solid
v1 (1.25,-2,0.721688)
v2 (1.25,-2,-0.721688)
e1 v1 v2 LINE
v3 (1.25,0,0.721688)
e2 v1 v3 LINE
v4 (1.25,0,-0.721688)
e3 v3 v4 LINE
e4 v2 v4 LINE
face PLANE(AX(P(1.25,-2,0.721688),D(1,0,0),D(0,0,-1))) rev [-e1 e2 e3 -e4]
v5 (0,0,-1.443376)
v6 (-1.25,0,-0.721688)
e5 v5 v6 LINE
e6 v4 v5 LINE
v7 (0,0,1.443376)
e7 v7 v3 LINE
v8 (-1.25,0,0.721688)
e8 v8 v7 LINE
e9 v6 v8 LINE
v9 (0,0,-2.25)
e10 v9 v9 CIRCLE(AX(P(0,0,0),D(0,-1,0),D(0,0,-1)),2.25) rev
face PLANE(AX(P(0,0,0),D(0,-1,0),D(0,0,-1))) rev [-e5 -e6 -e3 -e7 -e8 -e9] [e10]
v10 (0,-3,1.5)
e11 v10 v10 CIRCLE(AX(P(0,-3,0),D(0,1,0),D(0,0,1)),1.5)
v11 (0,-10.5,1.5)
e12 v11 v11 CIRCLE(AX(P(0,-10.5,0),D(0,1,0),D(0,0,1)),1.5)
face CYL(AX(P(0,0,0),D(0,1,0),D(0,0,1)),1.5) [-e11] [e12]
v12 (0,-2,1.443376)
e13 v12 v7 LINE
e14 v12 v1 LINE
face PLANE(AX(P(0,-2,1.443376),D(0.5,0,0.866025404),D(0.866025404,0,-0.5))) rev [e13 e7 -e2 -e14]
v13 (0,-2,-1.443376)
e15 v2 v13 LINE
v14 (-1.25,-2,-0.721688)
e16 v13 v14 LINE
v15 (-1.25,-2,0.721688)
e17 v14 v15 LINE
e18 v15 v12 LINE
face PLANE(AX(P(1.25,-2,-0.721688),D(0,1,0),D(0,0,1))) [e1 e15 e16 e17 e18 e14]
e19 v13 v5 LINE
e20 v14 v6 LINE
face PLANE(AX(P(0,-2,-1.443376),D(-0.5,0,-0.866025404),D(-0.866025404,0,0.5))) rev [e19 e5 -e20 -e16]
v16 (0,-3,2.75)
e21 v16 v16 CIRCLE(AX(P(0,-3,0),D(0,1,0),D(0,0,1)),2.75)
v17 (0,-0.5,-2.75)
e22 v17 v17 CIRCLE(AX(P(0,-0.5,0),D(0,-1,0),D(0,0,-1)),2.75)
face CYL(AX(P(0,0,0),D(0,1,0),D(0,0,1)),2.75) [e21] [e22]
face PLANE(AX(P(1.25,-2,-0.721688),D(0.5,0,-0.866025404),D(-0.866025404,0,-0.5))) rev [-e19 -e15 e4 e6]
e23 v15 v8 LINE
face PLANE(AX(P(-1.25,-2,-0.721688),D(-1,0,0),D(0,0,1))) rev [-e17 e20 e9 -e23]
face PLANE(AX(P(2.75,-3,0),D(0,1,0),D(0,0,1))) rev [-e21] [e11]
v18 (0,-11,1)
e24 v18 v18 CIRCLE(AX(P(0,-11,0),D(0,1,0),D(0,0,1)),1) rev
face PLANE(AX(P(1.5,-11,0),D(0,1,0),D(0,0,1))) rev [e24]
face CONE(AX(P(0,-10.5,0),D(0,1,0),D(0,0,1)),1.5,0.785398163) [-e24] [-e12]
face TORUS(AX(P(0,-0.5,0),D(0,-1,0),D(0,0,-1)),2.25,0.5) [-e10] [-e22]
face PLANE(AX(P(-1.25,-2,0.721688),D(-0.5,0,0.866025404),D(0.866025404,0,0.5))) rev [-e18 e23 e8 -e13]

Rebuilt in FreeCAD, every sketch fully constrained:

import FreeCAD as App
import Part
import Sketcher
from FreeCAD import Vector
Q = App.Units.Quantity


def edges_at(feature, points):
    """Names of the edges that pass closest to the given points."""
    edges = feature.Shape.Edges
    near = lambda p: min(range(len(edges)), key=lambda i: edges[i].distToShape(Part.Vertex(*p))[0])
    return sorted({f"Edge{near(p) + 1}" for p in points})

doc = App.newDocument("Part")
body = doc.addObject("PartDesign::Body", "Body")

# Sketch on XY plane
sketch1 = body.newObject("Sketcher::SketchObject", "Sketch")
sketch1.AttachmentSupport = (doc.getObject("XY_Plane"), [""])
sketch1.MapMode = "FlatFace"
sketch1.addGeometry(Part.LineSegment(Vector(2.8, 0, 0), Vector(0, 0, 0)), False)
sketch1.addGeometry(Part.LineSegment(Vector(0, 0, 0), Vector(0, -11, 0)), False)
sketch1.addGeometry(Part.LineSegment(Vector(0, -11, 0), Vector(1.5, -11, 0)), False)
sketch1.addGeometry(Part.LineSegment(Vector(1.5, -11, 0), Vector(1.5, -3, 0)), False)
sketch1.addGeometry(Part.LineSegment(Vector(1.5, -3, 0), Vector(2.8, -3, 0)), False)
sketch1.addGeometry(Part.LineSegment(Vector(2.8, -3, 0), Vector(2.8, 0, 0)), False)
sketch1.addConstraint(Sketcher.Constraint("Coincident", 0, 2, 1, 1))
sketch1.addConstraint(Sketcher.Constraint("Coincident", 1, 2, 2, 1))
sketch1.addConstraint(Sketcher.Constraint("Coincident", 2, 2, 3, 1))
sketch1.addConstraint(Sketcher.Constraint("Coincident", 3, 2, 4, 1))
sketch1.addConstraint(Sketcher.Constraint("Coincident", 4, 2, 5, 1))
sketch1.addConstraint(Sketcher.Constraint("Coincident", 5, 2, 0, 1))
sketch1.addConstraint(Sketcher.Constraint("Horizontal", 0))
sketch1.addConstraint(Sketcher.Constraint("Vertical", 1))
sketch1.addConstraint(Sketcher.Constraint("Horizontal", 2))
sketch1.addConstraint(Sketcher.Constraint("Vertical", 3))
sketch1.addConstraint(Sketcher.Constraint("Horizontal", 4))
sketch1.addConstraint(Sketcher.Constraint("Vertical", 5))
sketch1.addConstraint(Sketcher.Constraint("Coincident", 0, 2, -1, 1))
sketch1.addConstraint(Sketcher.Constraint("DistanceY", 1, 2, 1, 1, Q("11 mm")))
sketch1.addConstraint(Sketcher.Constraint("DistanceY", 3, 1, 3, 2, Q("8 mm")))
sketch1.addConstraint(Sketcher.Constraint("DistanceX", 2, 1, 2, 2, Q("1.5 mm")))
sketch1.addConstraint(Sketcher.Constraint("DistanceX", 0, 2, 0, 1, Q("2.75 mm")))
revolution = body.newObject("PartDesign::Revolution", "Revolution")
revolution.Profile = sketch1
revolution.ReferenceAxis = (sketch1, ["V_Axis"])
revolution.Angle = 360

# Sketch on XZ plane
sketch2 = body.newObject("Sketcher::SketchObject", "Sketch001")
sketch2.AttachmentSupport = (doc.getObject("XZ_Plane"), [""])
sketch2.MapMode = "FlatFace"
sketch2.addGeometry(Part.LineSegment(Vector(1.2, -0.7, 0), Vector(0, -1.4, 0)), False)
sketch2.addGeometry(Part.LineSegment(Vector(0, -1.4, 0), Vector(-1.2, -0.7, 0)), False)
sketch2.addGeometry(Part.LineSegment(Vector(-1.2, -0.7, 0), Vector(-1.2, 0.7, 0)), False)
sketch2.addGeometry(Part.LineSegment(Vector(-1.2, 0.7, 0), Vector(0, 1.4, 0)), False)
sketch2.addGeometry(Part.LineSegment(Vector(0, 1.4, 0), Vector(1.2, 0.7, 0)), False)
sketch2.addGeometry(Part.LineSegment(Vector(1.2, 0.7, 0), Vector(1.2, -0.7, 0)), False)
sketch2.addConstraint(Sketcher.Constraint("Coincident", 0, 2, 1, 1))
sketch2.addConstraint(Sketcher.Constraint("Coincident", 1, 2, 2, 1))
sketch2.addConstraint(Sketcher.Constraint("Coincident", 2, 2, 3, 1))
sketch2.addConstraint(Sketcher.Constraint("Coincident", 3, 2, 4, 1))
sketch2.addConstraint(Sketcher.Constraint("Coincident", 4, 2, 5, 1))
sketch2.addConstraint(Sketcher.Constraint("Coincident", 5, 2, 0, 1))
sketch2.addConstraint(Sketcher.Constraint("Vertical", 2))
sketch2.addConstraint(Sketcher.Constraint("Vertical", 5))
sketch2.addConstraint(Sketcher.Constraint("Symmetric", 0, 2, 3, 2, -1, 1))
sketch2.addConstraint(Sketcher.Constraint("Symmetric", 1, 2, 4, 2, -1, 1))
sketch2.addConstraint(Sketcher.Constraint("PointOnObject", 0, 2, -2))
sketch2.addConstraint(Sketcher.Constraint("Parallel", 0, 3))
sketch2.addConstraint(Sketcher.Constraint("Horizontal", 2, 2, 4, 2))
sketch2.addConstraint(Sketcher.Constraint("Angle", 0, Q("-150 deg")))
sketch2.addConstraint(Sketcher.Constraint("DistanceX", 2, 2, 4, 2, Q("2.5 mm")))
sketch2.addConstraint(Sketcher.Constraint("DistanceY", 2, 1, 2, 2, Q("1.443376 mm")))
pocket1 = body.newObject("PartDesign::Pocket", "Pocket")
pocket1.Profile = sketch2
pocket1.Length = 2
pocket1.Reversed = True
doc.recompute()

chamfer = body.newObject("PartDesign::Chamfer", "Chamfer")
chamfer.Base = (pocket1, edges_at(pocket1, [(-1.5, -11, 0)]))
chamfer.Size = 0.5
doc.recompute()

fillet = body.newObject("PartDesign::Fillet", "Fillet")
fillet.Base = (chamfer, edges_at(chamfer, [(-2.75, 0, 0)]))
fillet.Radius = 0.5

doc.recompute()
